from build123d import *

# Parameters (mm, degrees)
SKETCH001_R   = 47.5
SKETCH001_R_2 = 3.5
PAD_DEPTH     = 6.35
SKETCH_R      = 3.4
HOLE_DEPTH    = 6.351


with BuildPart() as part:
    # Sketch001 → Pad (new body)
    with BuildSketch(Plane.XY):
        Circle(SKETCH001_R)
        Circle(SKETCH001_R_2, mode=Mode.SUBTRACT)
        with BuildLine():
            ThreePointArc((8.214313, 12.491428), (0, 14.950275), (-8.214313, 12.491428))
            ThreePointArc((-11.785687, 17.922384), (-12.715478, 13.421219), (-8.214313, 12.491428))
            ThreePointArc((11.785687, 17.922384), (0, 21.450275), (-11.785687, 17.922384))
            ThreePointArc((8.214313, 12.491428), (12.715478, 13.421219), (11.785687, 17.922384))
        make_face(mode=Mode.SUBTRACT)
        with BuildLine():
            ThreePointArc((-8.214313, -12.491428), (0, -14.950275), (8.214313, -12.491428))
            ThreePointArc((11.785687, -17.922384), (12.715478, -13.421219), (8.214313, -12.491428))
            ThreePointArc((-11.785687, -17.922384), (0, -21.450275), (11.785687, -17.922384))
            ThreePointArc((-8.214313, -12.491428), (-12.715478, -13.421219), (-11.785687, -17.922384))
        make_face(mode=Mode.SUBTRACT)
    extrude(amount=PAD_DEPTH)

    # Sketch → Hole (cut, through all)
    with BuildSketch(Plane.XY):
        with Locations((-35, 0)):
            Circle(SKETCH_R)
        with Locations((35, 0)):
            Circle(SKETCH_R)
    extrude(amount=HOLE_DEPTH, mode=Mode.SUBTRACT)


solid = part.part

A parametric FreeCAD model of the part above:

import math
import FreeCAD as App
import Part
import Sketcher
from FreeCAD import Vector
Q = App.Units.Quantity

doc = App.newDocument("Part")
body = doc.addObject("PartDesign::Body", "Body")

# Sketch on XY plane
sketch1 = body.newObject("Sketcher::SketchObject", "Sketch")
sketch1.AttachmentSupport = (doc.getObject("XY_Plane"), [""])
sketch1.MapMode = "FlatFace"
sketch1.addGeometry([
    Part.Circle(Vector(0, 0, 0), Vector(0, 0, 1), 47.5),  # 0
    Part.ArcOfCircle(Part.Circle(Vector(-10, -15.206906, 0), Vector(0, 0, 1), 3.25), math.radians(56.671247), math.radians(236.671247)),  # 1
    Part.ArcOfCircle(Part.Circle(Vector(0, -0.000002, 0), Vector(0, 0, 1), 14.950273), math.radians(-123.328764), math.radians(-56.671236)),  # 2
    Part.ArcOfCircle(Part.Circle(Vector(10, -15.206906, 0), Vector(0, 0, 1), 3.25), math.radians(-56.671247), math.radians(123.328753)),  # 3
    Part.ArcOfCircle(Part.Circle(Vector(0, -0.000004, 0), Vector(0, 0, 1), 21.450271), math.radians(-123.328764), math.radians(-56.671236)),  # 4
    Part.Circle(Vector(0, 0, 0), Vector(0, 0, 1), 3.5),  # 5
    Part.ArcOfCircle(Part.Circle(Vector(10, 15.206906, 0), Vector(0, 0, 1), 3.25), math.radians(-123.328753), math.radians(56.671247)),  # 6
    Part.ArcOfCircle(Part.Circle(Vector(0, 0.000002, 0), Vector(0, 0, 1), 14.950273), math.radians(56.671236), math.radians(123.328764)),  # 7
    Part.ArcOfCircle(Part.Circle(Vector(-10, 15.206906, 0), Vector(0, 0, 1), 3.25), math.radians(123.328753), math.radians(303.328753)),  # 8
    Part.ArcOfCircle(Part.Circle(Vector(0, 0.000004, 0), Vector(0, 0, 1), 21.450271), math.radians(56.671236), math.radians(123.328764)),  # 9
], False)
sketch1.addConstraint([
    Sketcher.Constraint("Tangent", 1, 1, 2, 1),
    Sketcher.Constraint("Tangent", 2, 2, 3, 2),
    Sketcher.Constraint("Tangent", 3, 1, 4, 2),
    Sketcher.Constraint("Tangent", 4, 1, 1, 2),
    Sketcher.Constraint("Tangent", 6, 1, 7, 1),
    Sketcher.Constraint("Tangent", 7, 2, 8, 2),
    Sketcher.Constraint("Tangent", 8, 1, 9, 2),
    Sketcher.Constraint("Tangent", 9, 1, 6, 2),
    Sketcher.Constraint("Coincident", 0, 3, -1, 1),
    Sketcher.Constraint("Coincident", 2, 3, -1, 1),
    Sketcher.Constraint("Coincident", 4, 3, -1, 1),
    Sketcher.Constraint("Coincident", 5, 3, -1, 1),
    Sketcher.Constraint("Coincident", 7, 3, -1, 1),
    Sketcher.Constraint("Coincident", 9, 3, -1, 1),
    Sketcher.Constraint("Equal", 3, 6),
    Sketcher.Constraint("Equal", 2, 7),
    Sketcher.Constraint("Horizontal", 1, 3, 3, 3),
    Sketcher.Constraint("Horizontal", 6, 3, 8, 3),
    Sketcher.Constraint("Vertical", 3, 3, 6, 3),
    Sketcher.Constraint("Diameter", 0, Q("95 mm")),
    Sketcher.Constraint("Diameter", 5, Q("7 mm")),
    Sketcher.Constraint("Radius", 1, Q("3.25 mm")),
    Sketcher.Constraint("DistanceX", 1, 3, -1, 1, Q("10 mm")),
    Sketcher.Constraint("Radius", 4, Q("21.450271 mm")),
])
pad1 = body.newObject("PartDesign::Pad", "Pad")
pad1.Profile = sketch1
pad1.Length = 6.35

# Sketch on XY plane
sketch2 = body.newObject("Sketcher::SketchObject", "Sketch001")
sketch2.AttachmentSupport = (doc.getObject("XY_Plane"), [""])
sketch2.MapMode = "FlatFace"
sketch2.addGeometry([
    Part.Circle(Vector(-35, 0, 0), Vector(0, 0, 1), 3.4),
    Part.Circle(Vector(35, 0, 0), Vector(0, 0, 1), 3.4),
], False)
sketch2.addConstraint([
    Sketcher.Constraint("Equal", 0, 1),
    Sketcher.Constraint("Symmetric", 0, 3, 1, 3, -1, 1),
    Sketcher.Constraint("PointOnObject", 0, 3, -1),
    Sketcher.Constraint("Diameter", 0, Q("6.8 mm")),
    Sketcher.Constraint("DistanceX", 0, 3, -1, 1, Q("35 mm")),
])
pocket1 = body.newObject("PartDesign::Pocket", "Pocket")
pocket1.Profile = sketch2
pocket1.Type = "ThroughAll"
pocket1.Reversed = True

doc.recompute()
